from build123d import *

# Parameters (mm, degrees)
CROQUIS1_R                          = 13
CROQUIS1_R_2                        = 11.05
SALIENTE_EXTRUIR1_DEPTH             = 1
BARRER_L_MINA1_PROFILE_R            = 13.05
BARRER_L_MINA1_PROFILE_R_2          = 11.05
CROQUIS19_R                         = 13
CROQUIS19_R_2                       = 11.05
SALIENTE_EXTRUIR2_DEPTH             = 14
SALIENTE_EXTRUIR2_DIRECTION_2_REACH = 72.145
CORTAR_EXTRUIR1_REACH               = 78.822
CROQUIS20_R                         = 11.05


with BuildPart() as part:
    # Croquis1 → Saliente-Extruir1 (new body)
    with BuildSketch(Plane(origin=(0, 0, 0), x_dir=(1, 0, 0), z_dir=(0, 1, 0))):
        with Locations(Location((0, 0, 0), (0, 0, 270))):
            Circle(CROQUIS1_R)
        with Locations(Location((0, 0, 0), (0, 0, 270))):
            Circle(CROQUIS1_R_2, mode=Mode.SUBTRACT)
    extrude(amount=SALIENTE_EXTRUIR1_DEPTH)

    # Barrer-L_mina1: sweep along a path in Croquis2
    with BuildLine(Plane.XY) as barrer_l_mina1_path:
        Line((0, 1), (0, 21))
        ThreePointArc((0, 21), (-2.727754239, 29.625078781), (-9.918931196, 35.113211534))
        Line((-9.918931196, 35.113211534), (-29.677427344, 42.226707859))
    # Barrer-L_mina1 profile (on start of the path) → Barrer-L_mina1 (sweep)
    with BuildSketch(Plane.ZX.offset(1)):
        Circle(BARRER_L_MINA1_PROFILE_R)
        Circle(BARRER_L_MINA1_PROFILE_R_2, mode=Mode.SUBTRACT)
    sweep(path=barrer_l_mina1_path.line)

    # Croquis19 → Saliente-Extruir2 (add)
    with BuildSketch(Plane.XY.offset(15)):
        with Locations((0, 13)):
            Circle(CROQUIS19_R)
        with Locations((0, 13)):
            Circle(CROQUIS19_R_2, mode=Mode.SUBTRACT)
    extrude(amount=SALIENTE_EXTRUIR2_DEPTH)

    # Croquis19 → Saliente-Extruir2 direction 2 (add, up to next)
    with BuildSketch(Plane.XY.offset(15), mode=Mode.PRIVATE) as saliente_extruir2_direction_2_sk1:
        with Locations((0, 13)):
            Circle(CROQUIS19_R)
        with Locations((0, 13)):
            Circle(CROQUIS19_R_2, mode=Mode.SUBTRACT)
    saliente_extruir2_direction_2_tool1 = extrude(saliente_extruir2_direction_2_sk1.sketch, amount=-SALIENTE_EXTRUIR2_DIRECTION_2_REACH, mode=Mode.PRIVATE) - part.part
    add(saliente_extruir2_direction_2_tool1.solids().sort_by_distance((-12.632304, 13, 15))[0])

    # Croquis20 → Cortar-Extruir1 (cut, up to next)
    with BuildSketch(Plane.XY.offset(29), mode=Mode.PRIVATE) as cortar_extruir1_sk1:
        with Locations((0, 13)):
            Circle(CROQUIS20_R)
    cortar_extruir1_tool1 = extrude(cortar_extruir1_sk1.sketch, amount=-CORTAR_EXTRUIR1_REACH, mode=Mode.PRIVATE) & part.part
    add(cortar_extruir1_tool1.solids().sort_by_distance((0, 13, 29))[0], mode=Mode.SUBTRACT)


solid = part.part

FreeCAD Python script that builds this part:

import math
import FreeCAD as App
import Part
import Sketcher
Q = App.Units.Quantity

doc = App.newDocument("Part")
body = doc.addObject("PartDesign::Body", "Body")
body.AllowCompound = True

sketch1 = body.newObject("Sketcher::SketchObject", "Sketch")
sketch1.AttachmentSupport = (doc.getObject("XZ_Plane"), [""])
sketch1.MapMode = "FlatFace"
sketch1.addGeometry([
    Part.Circle(App.Vector(0, 0, 0), App.Vector(0, 0, 1), 13),
    Part.Circle(App.Vector(0, 0, 0), App.Vector(0, 0, 1), 11),
], False)
sketch1.addConstraint([
    Sketcher.Constraint("Coincident", 0, 3, -1, 1),
    Sketcher.Constraint("Coincident", 1, 3, -1, 1),
    Sketcher.Constraint("Diameter", 0, 26.0),
    Sketcher.Constraint("Diameter", 1, 22.1),
])
pad1 = body.newObject("PartDesign::Pad", "Pad")
pad1.Profile = sketch1
pad1.Length = 1
pad1.Reversed = True

sketch2 = body.newObject("Sketcher::SketchObject", "Sketch001")
sketch2.AttachmentSupport = (doc.getObject("XZ_Plane"), [""])
sketch2.MapMode = "FlatFace"
sketch2.AttachmentOffset = App.Placement(App.Vector(0, 0, -1), App.Rotation())
sketch2.addGeometry([
    Part.Circle(App.Vector(0, 0, 0), App.Vector(0, 0, 1), 13),
    Part.Circle(App.Vector(0, 0, 0), App.Vector(0, 0, 1), 11),
], False)
sketch2.addConstraint([
    Sketcher.Constraint("Coincident", 0, 3, -1, 1),
    Sketcher.Constraint("Coincident", 1, 3, -1, 1),
    Sketcher.Constraint("Diameter", 0, 26.1),
    Sketcher.Constraint("Diameter", 1, 22.1),
])

sketch3 = body.newObject("Sketcher::SketchObject", "Sketch002")
sketch3.AttachmentSupport = (doc.getObject("XY_Plane"), [""])
sketch3.MapMode = "FlatFace"
sketch3.addGeometry([
    Part.LineSegment(App.Vector(0, 1, 0), App.Vector(0, 21, 0)),
    Part.ArcOfCircle(Part.Circle(App.Vector(-15, 21, 0), App.Vector(0, 0, 1), 15), math.radians(0), math.radians(70)),
    Part.LineSegment(App.Vector(-10, 35, 0), App.Vector(-30, 42, 0)),
], False)
sketch3.addConstraint([
    Sketcher.Constraint("Tangent", 0, 2, 1, 1),
    Sketcher.Constraint("Tangent", 1, 2, 2, 1),
    Sketcher.Constraint("Vertical", 0),
    Sketcher.Constraint("PointOnObject", 0, 1, -2),
    Sketcher.Constraint("Radius", 1, 15.0),
    Sketcher.Constraint("DistanceY", 0, 1, 0, 2, 20.0),
    Sketcher.Constraint("Distance", 2, 21.0),
    Sketcher.Constraint("DistanceY", -1, 1, 1, 3, 21.0),
    Sketcher.Constraint("Angle", 2, Q("160.2 deg")),
])
doc.recompute()

additivepipe = body.newObject("PartDesign::AdditivePipe", "AdditivePipe")
additivepipe.Profile = sketch2
additivepipe.Spine = (sketch3, ["Edge1", "Edge2", "Edge3"])

sketch4 = body.newObject("Sketcher::SketchObject", "Sketch003")
sketch4.AttachmentSupport = (doc.getObject("XY_Plane"), [""])
sketch4.MapMode = "FlatFace"
sketch4.AttachmentOffset = App.Placement(App.Vector(0, 0, 15), App.Rotation())
sketch4.addGeometry([
    Part.Circle(App.Vector(0, 13, 0), App.Vector(0, 0, 1), 13),
    Part.Circle(App.Vector(0, 13, 0), App.Vector(0, 0, 1), 11),
], False)
sketch4.addConstraint([
    Sketcher.Constraint("Coincident", 1, 3, 0, 3),
    Sketcher.Constraint("PointOnObject", 0, 3, -2),
    Sketcher.Constraint("Diameter", 0, 26.0),
    Sketcher.Constraint("Diameter", 1, 22.1),
    Sketcher.Constraint("DistanceY", -1, 1, 0, 3, 13.0),
])
pad2 = body.newObject("PartDesign::Pad", "Pad001")
pad2.Profile = sketch4
pad2.Length = 14

sketch5 = body.newObject("Sketcher::SketchObject", "Sketch004")
sketch5.AttachmentSupport = (doc.getObject("XY_Plane"), [""])
sketch5.MapMode = "FlatFace"
sketch5.AttachmentOffset = App.Placement(App.Vector(0, 0, 15), App.Rotation())
sketch5.addGeometry([
    Part.Circle(App.Vector(0, 13, 0), App.Vector(0, 0, 1), 13),
    Part.Circle(App.Vector(0, 13, 0), App.Vector(0, 0, 1), 11),
], False)
sketch5.addConstraint([
    Sketcher.Constraint("Coincident", 1, 3, 0, 3),
    Sketcher.Constraint("PointOnObject", 0, 3, -2),
    Sketcher.Constraint("Diameter", 0, 26.0),
    Sketcher.Constraint("Diameter", 1, 22.1),
    Sketcher.Constraint("DistanceY", -1, 1, 0, 3, 13.0),
])
pad3 = body.newObject("PartDesign::Pad", "Pad002")
pad3.Profile = sketch5
pad3.Type = "UpToFirst"
pad3.Reversed = True

sketch6 = body.newObject("Sketcher::SketchObject", "Sketch005")
sketch6.AttachmentSupport = (doc.getObject("XY_Plane"), [""])
sketch6.MapMode = "FlatFace"
sketch6.AttachmentOffset = App.Placement(App.Vector(0, 0, 29), App.Rotation())
sketch6.addGeometry(Part.Circle(App.Vector(0, 13, 0), App.Vector(0, 0, 1), 11), False)
sketch6.addConstraint([
    Sketcher.Constraint("PointOnObject", 0, 3, -2),
    Sketcher.Constraint("Diameter", 0, 22.1),
    Sketcher.Constraint("DistanceY", -1, 1, 0, 3, 13.0),
])
pocket1 = body.newObject("PartDesign::Pocket", "Pocket")
pocket1.Profile = sketch6
pocket1.Length = 29

doc.recompute()
